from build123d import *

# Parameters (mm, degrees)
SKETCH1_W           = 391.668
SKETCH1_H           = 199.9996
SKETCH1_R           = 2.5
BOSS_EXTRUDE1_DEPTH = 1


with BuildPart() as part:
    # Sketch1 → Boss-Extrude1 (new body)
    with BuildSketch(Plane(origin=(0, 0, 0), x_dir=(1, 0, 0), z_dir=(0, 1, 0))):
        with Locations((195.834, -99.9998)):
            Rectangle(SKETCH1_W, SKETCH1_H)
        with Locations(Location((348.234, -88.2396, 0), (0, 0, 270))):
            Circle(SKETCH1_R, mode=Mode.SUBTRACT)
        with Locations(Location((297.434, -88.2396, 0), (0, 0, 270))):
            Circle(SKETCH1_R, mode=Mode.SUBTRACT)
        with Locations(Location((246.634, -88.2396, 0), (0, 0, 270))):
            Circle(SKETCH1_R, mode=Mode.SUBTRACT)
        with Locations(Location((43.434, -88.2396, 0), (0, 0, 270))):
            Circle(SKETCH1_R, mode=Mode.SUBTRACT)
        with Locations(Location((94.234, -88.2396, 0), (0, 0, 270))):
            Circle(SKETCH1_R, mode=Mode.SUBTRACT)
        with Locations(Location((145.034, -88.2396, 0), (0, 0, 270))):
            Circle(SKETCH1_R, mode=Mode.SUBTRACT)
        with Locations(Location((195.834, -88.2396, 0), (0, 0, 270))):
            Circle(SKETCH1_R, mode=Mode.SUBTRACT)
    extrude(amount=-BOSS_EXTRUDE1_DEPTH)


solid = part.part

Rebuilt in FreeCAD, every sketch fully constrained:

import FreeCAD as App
import Part
import Sketcher
from FreeCAD import Vector


def add_polygon(sketch, points):
    """Adds a closed chain of lines whose ends are joined by coincident constraints."""
    first, n = sketch.GeometryCount, len(points)
    for a, b in zip(points, points[1:] + points[:1]):
        sketch.addGeometry(Part.LineSegment(App.Vector(*a, 0), App.Vector(*b, 0)), False)
    for i in range(n):
        sketch.addConstraint(Sketcher.Constraint("Coincident", first + i, 2, first + (i + 1) % n, 1))

doc = App.newDocument("Part")
body = doc.addObject("PartDesign::Body", "Body")

sketch1 = doc.addObject("Sketcher::SketchObject", "Sketch")
body.addObject(sketch1)
sketch1.AttachmentSupport = (doc.XZ_Plane, [""])
sketch1.MapMode = "FlatFace"
add_polygon(sketch1, [(0, 0), (0, 199.9996), (391.668, 199.9996), (391.668, 0)])
sketch1.addGeometry(Part.Circle(Vector(43.434, 88.2396, 0), Vector(0, 0, 1), 2.5), False)
sketch1.addGeometry(Part.Circle(Vector(94.234, 88.2396, 0), Vector(0, 0, 1), 2.5), False)
sketch1.addGeometry(Part.Circle(Vector(145.034, 88.2396, 0), Vector(0, 0, 1), 2.5), False)
sketch1.addGeometry(Part.Circle(Vector(195.834, 88.2396, 0), Vector(0, 0, 1), 2.5), False)
sketch1.addGeometry(Part.Circle(Vector(246.634, 88.2396, 0), Vector(0, 0, 1), 2.5), False)
sketch1.addGeometry(Part.Circle(Vector(297.434, 88.2396, 0), Vector(0, 0, 1), 2.5), False)
sketch1.addGeometry(Part.Circle(Vector(348.234, 88.2396, 0), Vector(0, 0, 1), 2.5), False)
sketch1.addConstraint([
    Sketcher.Constraint("Vertical", 0),
    Sketcher.Constraint("Horizontal", 1),
    Sketcher.Constraint("Vertical", 2),
    Sketcher.Constraint("Horizontal", 3),
    Sketcher.Constraint("Coincident", 3, 2, -1, 1),
    Sketcher.Constraint("Equal", 4, 5),
    Sketcher.Constraint("Equal", 5, 6),
    Sketcher.Constraint("Equal", 6, 7),
    Sketcher.Constraint("Equal", 7, 8),
    Sketcher.Constraint("Equal", 8, 9),
    Sketcher.Constraint("Equal", 9, 10),
    Sketcher.Constraint("Horizontal", 4, 3, 5, 3),
    Sketcher.Constraint("Horizontal", 5, 3, 6, 3),
    Sketcher.Constraint("Horizontal", 6, 3, 7, 3),
    Sketcher.Constraint("Horizontal", 7, 3, 8, 3),
    Sketcher.Constraint("Horizontal", 8, 3, 9, 3),
    Sketcher.Constraint("Horizontal", 9, 3, 10, 3),
    Sketcher.Constraint("Diameter", 4, 5.0),
    Sketcher.Constraint("DistanceX", 4, 3, 9, 3, 254.0),
    Sketcher.Constraint("DistanceX", 5, 3, 10, 3, 254.0),
    Sketcher.Constraint("DistanceX", 4, 3, 5, 3, 50.8),
    Sketcher.Constraint("DistanceX", 5, 3, 6, 3, 50.8),
    Sketcher.Constraint("DistanceX", 6, 3, 7, 3, 50.8),
    Sketcher.Constraint("DistanceX", 7, 3, 8, 3, 50.8),
    Sketcher.Constraint("DistanceX", 1, 1, 1, 2, 391.668),
    Sketcher.Constraint("DistanceY", 4, 3, 0, 2, 111.76),
    Sketcher.Constraint("DistanceY", 0, 1, 0, 2, 199.9996),
    Sketcher.Constraint("DistanceX", -1, 1, 4, 3, 43.434),
])
pad1 = doc.addObject("PartDesign::Pad", "Pad")
body.addObject(pad1)
pad1.Profile = sketch1
pad1.Length = 1

doc.recompute()
